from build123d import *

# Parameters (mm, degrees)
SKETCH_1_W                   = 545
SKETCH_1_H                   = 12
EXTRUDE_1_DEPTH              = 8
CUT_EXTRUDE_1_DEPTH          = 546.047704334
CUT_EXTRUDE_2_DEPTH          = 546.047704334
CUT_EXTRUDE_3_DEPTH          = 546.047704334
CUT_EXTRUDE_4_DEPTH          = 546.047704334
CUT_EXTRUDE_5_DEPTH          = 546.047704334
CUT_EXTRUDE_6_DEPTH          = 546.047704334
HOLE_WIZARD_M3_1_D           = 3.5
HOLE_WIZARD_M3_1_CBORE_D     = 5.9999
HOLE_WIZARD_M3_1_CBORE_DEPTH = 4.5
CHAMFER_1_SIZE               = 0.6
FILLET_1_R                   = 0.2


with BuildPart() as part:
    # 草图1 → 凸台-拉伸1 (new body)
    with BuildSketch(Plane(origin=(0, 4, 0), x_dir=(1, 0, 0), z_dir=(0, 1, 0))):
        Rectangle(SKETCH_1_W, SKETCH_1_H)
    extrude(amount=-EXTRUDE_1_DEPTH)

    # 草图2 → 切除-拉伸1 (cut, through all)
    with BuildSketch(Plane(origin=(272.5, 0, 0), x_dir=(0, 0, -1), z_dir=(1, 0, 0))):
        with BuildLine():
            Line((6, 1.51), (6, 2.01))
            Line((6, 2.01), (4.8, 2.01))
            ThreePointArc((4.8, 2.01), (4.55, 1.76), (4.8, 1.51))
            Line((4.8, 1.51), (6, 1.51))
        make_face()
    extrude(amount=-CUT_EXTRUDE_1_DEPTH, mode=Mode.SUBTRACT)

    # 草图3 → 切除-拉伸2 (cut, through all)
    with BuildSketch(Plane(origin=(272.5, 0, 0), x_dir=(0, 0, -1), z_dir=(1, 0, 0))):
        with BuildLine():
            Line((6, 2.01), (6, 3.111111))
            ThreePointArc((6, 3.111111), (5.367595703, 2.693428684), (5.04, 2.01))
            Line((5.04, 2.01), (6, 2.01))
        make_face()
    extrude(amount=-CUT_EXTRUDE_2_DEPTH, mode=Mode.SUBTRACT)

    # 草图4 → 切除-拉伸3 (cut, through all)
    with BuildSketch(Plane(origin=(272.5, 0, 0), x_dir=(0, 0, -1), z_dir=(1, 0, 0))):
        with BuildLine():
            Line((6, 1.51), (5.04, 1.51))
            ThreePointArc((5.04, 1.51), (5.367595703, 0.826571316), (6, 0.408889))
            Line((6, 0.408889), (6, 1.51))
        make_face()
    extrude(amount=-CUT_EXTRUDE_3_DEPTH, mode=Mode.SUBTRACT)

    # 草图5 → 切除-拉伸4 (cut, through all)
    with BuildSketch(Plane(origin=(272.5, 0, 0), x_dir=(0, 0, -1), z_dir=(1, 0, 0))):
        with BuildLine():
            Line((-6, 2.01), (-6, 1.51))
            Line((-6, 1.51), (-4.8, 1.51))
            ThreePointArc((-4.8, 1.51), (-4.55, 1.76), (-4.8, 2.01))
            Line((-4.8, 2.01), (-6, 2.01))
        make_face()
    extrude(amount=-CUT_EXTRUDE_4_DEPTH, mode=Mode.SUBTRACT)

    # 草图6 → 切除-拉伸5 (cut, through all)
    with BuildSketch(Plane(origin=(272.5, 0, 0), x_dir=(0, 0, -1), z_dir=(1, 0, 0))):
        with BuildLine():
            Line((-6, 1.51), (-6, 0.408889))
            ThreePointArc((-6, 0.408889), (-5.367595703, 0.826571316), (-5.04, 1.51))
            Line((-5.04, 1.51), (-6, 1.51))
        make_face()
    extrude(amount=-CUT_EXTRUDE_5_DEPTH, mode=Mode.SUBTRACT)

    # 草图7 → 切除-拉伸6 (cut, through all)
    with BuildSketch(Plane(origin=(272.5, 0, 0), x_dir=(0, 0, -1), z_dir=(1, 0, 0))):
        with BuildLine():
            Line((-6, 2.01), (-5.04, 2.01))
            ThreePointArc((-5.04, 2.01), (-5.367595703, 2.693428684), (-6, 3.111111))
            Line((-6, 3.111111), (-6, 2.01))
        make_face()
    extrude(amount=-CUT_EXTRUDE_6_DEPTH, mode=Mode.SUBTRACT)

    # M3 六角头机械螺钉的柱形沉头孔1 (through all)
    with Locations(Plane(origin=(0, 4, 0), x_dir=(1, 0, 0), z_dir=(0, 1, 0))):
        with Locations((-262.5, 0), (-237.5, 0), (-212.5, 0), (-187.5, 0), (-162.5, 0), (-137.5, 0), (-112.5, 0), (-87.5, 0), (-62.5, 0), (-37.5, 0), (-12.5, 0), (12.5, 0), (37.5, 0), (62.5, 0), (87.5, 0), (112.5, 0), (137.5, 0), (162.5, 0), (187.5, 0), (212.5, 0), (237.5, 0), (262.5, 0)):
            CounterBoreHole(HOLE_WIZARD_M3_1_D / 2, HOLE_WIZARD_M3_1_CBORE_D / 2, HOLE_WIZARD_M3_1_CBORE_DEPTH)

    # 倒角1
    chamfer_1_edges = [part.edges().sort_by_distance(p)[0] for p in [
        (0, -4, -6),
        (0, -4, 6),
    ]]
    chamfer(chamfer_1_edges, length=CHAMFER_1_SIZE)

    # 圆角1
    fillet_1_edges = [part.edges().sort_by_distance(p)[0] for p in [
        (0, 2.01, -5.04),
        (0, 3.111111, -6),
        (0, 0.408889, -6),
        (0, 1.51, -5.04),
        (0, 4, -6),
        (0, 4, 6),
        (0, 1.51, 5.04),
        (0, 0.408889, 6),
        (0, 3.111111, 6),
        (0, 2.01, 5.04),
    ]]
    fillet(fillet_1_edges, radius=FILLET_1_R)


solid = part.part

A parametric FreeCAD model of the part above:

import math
import FreeCAD as App
import Part
import Sketcher

V = App.Vector
Q = App.Units.Quantity


def edges_at(feature, points):
    """Names of the edges that pass closest to the given points."""
    edges = feature.Shape.Edges
    near = lambda p: min(range(len(edges)), key=lambda i: edges[i].distToShape(Part.Vertex(*p))[0])
    return sorted({f"Edge{near(p) + 1}" for p in points})

doc = App.newDocument("Part")
body = doc.addObject("PartDesign::Body", "Body")

# Sketch on XZ plane
sketch1 = body.newObject("Sketcher::SketchObject", "Sketch")
sketch1.AttachmentSupport = (doc.getObject("XZ_Plane"), [""])
sketch1.MapMode = "FlatFace"
sketch1.AttachmentOffset = App.Placement(V(0, 0, -4), App.Rotation())
sketch1.addGeometry([
    Part.LineSegment(V(-272.5, -6, 0), V(-272.5, 6, 0)),
    Part.LineSegment(V(-272.5, 6, 0), V(272.5, 6, 0)),
    Part.LineSegment(V(272.5, 6, 0), V(272.5, -6, 0)),
    Part.LineSegment(V(272.5, -6, 0), V(-272.5, -6, 0)),
], False)
sketch1.addConstraint([
    Sketcher.Constraint("Coincident", 0, 2, 1, 1),
    Sketcher.Constraint("Coincident", 1, 2, 2, 1),
    Sketcher.Constraint("Coincident", 2, 2, 3, 1),
    Sketcher.Constraint("Coincident", 3, 2, 0, 1),
    Sketcher.Constraint("Vertical", 0),
    Sketcher.Constraint("Horizontal", 1),
    Sketcher.Constraint("Vertical", 2),
    Sketcher.Constraint("Horizontal", 3),
    Sketcher.Constraint("Symmetric", 0, 2, 2, 2, -1, 1),
    Sketcher.Constraint("DistanceX", 1, 1, 1, 2, Q("545 mm")),
    Sketcher.Constraint("DistanceY", 0, 1, 0, 2, Q("12 mm")),
])
pad1 = body.newObject("PartDesign::Pad", "Pad")
pad1.Profile = sketch1
pad1.Length = 8

# Sketch on YZ plane
sketch2 = body.newObject("Sketcher::SketchObject", "Sketch001")
sketch2.AttachmentSupport = (doc.getObject("YZ_Plane"), [""])
sketch2.MapMode = "FlatFace"
sketch2.AttachmentOffset = App.Placement(V(0, 0, 272.5), App.Rotation())
sketch2.addGeometry([
    Part.LineSegment(V(1.51, -6, 0), V(2.01, -6, 0)),
    Part.LineSegment(V(2.01, -6, 0), V(2.01, -4.8, 0)),
    Part.ArcOfCircle(Part.Circle(V(1.76, -4.8, 0), V(0, 0, 1), 0.25), math.radians(0), math.radians(180)),
    Part.LineSegment(V(1.51, -4.8, 0), V(1.51, -6, 0)),
], False)
sketch2.addConstraint([
    Sketcher.Constraint("Coincident", 0, 2, 1, 1),
    Sketcher.Constraint("Tangent", 1, 2, 2, 1),
    Sketcher.Constraint("Tangent", 2, 2, 3, 1),
    Sketcher.Constraint("Coincident", 3, 2, 0, 1),
    Sketcher.Constraint("Horizontal", 0),
    Sketcher.Constraint("Vertical", 1),
    Sketcher.Constraint("Vertical", 3),
    Sketcher.Constraint("Radius", 2, Q("0.25 mm")),
    Sketcher.Constraint("DistanceY", 1, 1, 1, 2, Q("1.2 mm")),
    Sketcher.Constraint("DistanceY", 0, 2, -1, 1, Q("6 mm")),
    Sketcher.Constraint("DistanceX", -1, 1, 2, 3, Q("1.76 mm")),
])
pocket1 = body.newObject("PartDesign::Pocket", "Pocket")
pocket1.Profile = sketch2
pocket1.Type = "ThroughAll"

# Sketch on YZ plane
sketch3 = body.newObject("Sketcher::SketchObject", "Sketch002")
sketch3.AttachmentSupport = (doc.getObject("YZ_Plane"), [""])
sketch3.MapMode = "FlatFace"
sketch3.AttachmentOffset = App.Placement(V(0, 0, 272.5), App.Rotation())
sketch3.addGeometry([
    Part.LineSegment(V(2.01, -6, 0), V(3.111111, -6, 0)),
    Part.ArcOfCircle(Part.Circle(V(1.76, -6.43823, 0), V(0, 0, 1), 1.420404), math.radians(17.970348), math.radians(79.862775)),
    Part.LineSegment(V(2.01, -5.04, 0), V(2.01, -6, 0)),
], False)
sketch3.addConstraint([
    Sketcher.Constraint("Coincident", 0, 2, 1, 1),
    Sketcher.Constraint("Coincident", 1, 2, 2, 1),
    Sketcher.Constraint("Coincident", 2, 2, 0, 1),
    Sketcher.Constraint("Horizontal", 0),
    Sketcher.Constraint("Vertical", 2),
    Sketcher.Constraint("DistanceY", 0, 2, -1, 1, Q("6 mm")),
    Sketcher.Constraint("DistanceY", 2, 2, 2, 1, Q("0.96 mm")),
    Sketcher.Constraint("DistanceX", -1, 1, 1, 3, Q("1.76 mm")),
    Sketcher.Constraint("DistanceX", -1, 1, 1, 2, Q("2.01 mm")),
    Sketcher.Constraint("Radius", 1, Q("1.420404 mm")),
])
pocket2 = body.newObject("PartDesign::Pocket", "Pocket001")
pocket2.Profile = sketch3
pocket2.Type = "ThroughAll"

# Sketch on YZ plane
sketch4 = body.newObject("Sketcher::SketchObject", "Sketch003")
sketch4.AttachmentSupport = (doc.getObject("YZ_Plane"), [""])
sketch4.MapMode = "FlatFace"
sketch4.AttachmentOffset = App.Placement(V(0, 0, 272.5), App.Rotation())
sketch4.addGeometry([
    Part.LineSegment(V(1.51, -6, 0), V(1.51, -5.04, 0)),
    Part.ArcOfCircle(Part.Circle(V(1.76, -6.43823, 0), V(0, 0, 1), 1.420404), math.radians(100.137225), math.radians(162.029652)),
    Part.LineSegment(V(0.408889, -6, 0), V(1.51, -6, 0)),
], False)
sketch4.addConstraint([
    Sketcher.Constraint("Coincident", 0, 2, 1, 1),
    Sketcher.Constraint("Coincident", 1, 2, 2, 1),
    Sketcher.Constraint("Coincident", 2, 2, 0, 1),
    Sketcher.Constraint("Vertical", 0),
    Sketcher.Constraint("Horizontal", 2),
    Sketcher.Constraint("DistanceY", 1, 2, -1, 1, Q("6 mm")),
    Sketcher.Constraint("DistanceY", 0, 1, 0, 2, Q("0.96 mm")),
    Sketcher.Constraint("DistanceX", -1, 1, 1, 3, Q("1.76 mm")),
    Sketcher.Constraint("DistanceX", -1, 1, 0, 2, Q("1.51 mm")),
    Sketcher.Constraint("Radius", 1, Q("1.420404 mm")),
])
pocket3 = body.newObject("PartDesign::Pocket", "Pocket002")
pocket3.Profile = sketch4
pocket3.Type = "ThroughAll"

# Sketch on YZ plane
sketch5 = body.newObject("Sketcher::SketchObject", "Sketch004")
sketch5.AttachmentSupport = (doc.getObject("YZ_Plane"), [""])
sketch5.MapMode = "FlatFace"
sketch5.AttachmentOffset = App.Placement(V(0, 0, 272.5), App.Rotation())
sketch5.addGeometry([
    Part.LineSegment(V(2.01, 6, 0), V(1.51, 6, 0)),
    Part.LineSegment(V(1.51, 6, 0), V(1.51, 4.8, 0)),
    Part.ArcOfCircle(Part.Circle(V(1.76, 4.8, 0), V(0, 0, 1), 0.25), math.radians(180), math.radians(360)),
    Part.LineSegment(V(2.01, 4.8, 0), V(2.01, 6, 0)),
], False)
sketch5.addConstraint([
    Sketcher.Constraint("Coincident", 0, 2, 1, 1),
    Sketcher.Constraint("Tangent", 1, 2, 2, 1),
    Sketcher.Constraint("Tangent", 2, 2, 3, 1),
    Sketcher.Constraint("Coincident", 3, 2, 0, 1),
    Sketcher.Constraint("Horizontal", 0),
    Sketcher.Constraint("Vertical", 1),
    Sketcher.Constraint("Vertical", 3),
    Sketcher.Constraint("Radius", 2, Q("0.25 mm")),
    Sketcher.Constraint("DistanceY", 1, 2, 1, 1, Q("1.2 mm")),
    Sketcher.Constraint("DistanceY", -1, 1, 0, 2, Q("6 mm")),
    Sketcher.Constraint("DistanceX", -1, 1, 2, 3, Q("1.76 mm")),
])
pocket4 = body.newObject("PartDesign::Pocket", "Pocket003")
pocket4.Profile = sketch5
pocket4.Type = "ThroughAll"

# Sketch on YZ plane
sketch6 = body.newObject("Sketcher::SketchObject", "Sketch005")
sketch6.AttachmentSupport = (doc.getObject("YZ_Plane"), [""])
sketch6.MapMode = "FlatFace"
sketch6.AttachmentOffset = App.Placement(V(0, 0, 272.5), App.Rotation())
sketch6.addGeometry([
    Part.LineSegment(V(1.51, 6, 0), V(0.408889, 6, 0)),
    Part.ArcOfCircle(Part.Circle(V(1.76, 6.43823, 0), V(0, 0, 1), 1.420404), math.radians(-162.029652), math.radians(-100.137225)),
    Part.LineSegment(V(1.51, 5.04, 0), V(1.51, 6, 0)),
], False)
sketch6.addConstraint([
    Sketcher.Constraint("Coincident", 0, 2, 1, 1),
    Sketcher.Constraint("Coincident", 1, 2, 2, 1),
    Sketcher.Constraint("Coincident", 2, 2, 0, 1),
    Sketcher.Constraint("Horizontal", 0),
    Sketcher.Constraint("Vertical", 2),
    Sketcher.Constraint("DistanceY", -1, 1, 0, 2, Q("6 mm")),
    Sketcher.Constraint("DistanceY", 2, 1, 2, 2, Q("0.96 mm")),
    Sketcher.Constraint("DistanceX", -1, 1, 1, 3, Q("1.76 mm")),
    Sketcher.Constraint("DistanceX", -1, 1, 1, 2, Q("1.51 mm")),
    Sketcher.Constraint("Radius", 1, Q("1.420404 mm")),
])
pocket5 = body.newObject("PartDesign::Pocket", "Pocket004")
pocket5.Profile = sketch6
pocket5.Type = "ThroughAll"

# Sketch on YZ plane
sketch7 = body.newObject("Sketcher::SketchObject", "Sketch006")
sketch7.AttachmentSupport = (doc.getObject("YZ_Plane"), [""])
sketch7.MapMode = "FlatFace"
sketch7.AttachmentOffset = App.Placement(V(0, 0, 272.5), App.Rotation())
sketch7.addGeometry([
    Part.LineSegment(V(2.01, 6, 0), V(2.01, 5.04, 0)),
    Part.ArcOfCircle(Part.Circle(V(1.76, 6.43823, 0), V(0, 0, 1), 1.420404), math.radians(-79.862775), math.radians(-17.970348)),
    Part.LineSegment(V(3.111111, 6, 0), V(2.01, 6, 0)),
], False)
sketch7.addConstraint([
    Sketcher.Constraint("Coincident", 0, 2, 1, 1),
    Sketcher.Constraint("Coincident", 1, 2, 2, 1),
    Sketcher.Constraint("Coincident", 2, 2, 0, 1),
    Sketcher.Constraint("Vertical", 0),
    Sketcher.Constraint("Horizontal", 2),
    Sketcher.Constraint("DistanceY", -1, 1, 1, 2, Q("6 mm")),
    Sketcher.Constraint("DistanceY", 0, 2, 0, 1, Q("0.96 mm")),
    Sketcher.Constraint("DistanceX", -1, 1, 1, 3, Q("1.76 mm")),
    Sketcher.Constraint("DistanceX", -1, 1, 0, 2, Q("2.01 mm")),
    Sketcher.Constraint("Radius", 1, Q("1.420404 mm")),
])
pocket6 = body.newObject("PartDesign::Pocket", "Pocket005")
pocket6.Profile = sketch7
pocket6.Type = "ThroughAll"

# Sketch on XZ plane
sketch8 = body.newObject("Sketcher::SketchObject", "Sketch007")
sketch8.AttachmentSupport = (doc.getObject("XZ_Plane"), [""])
sketch8.MapMode = "FlatFace"
sketch8.AttachmentOffset = App.Placement(V(0, 0, -4), App.Rotation())
sketch8.addGeometry([
    Part.Circle(V(-262.5, 0, 0), V(0, 0, 1), 1.75),  # 0
    Part.Circle(V(-237.5, 0, 0), V(0, 0, 1), 1.75),  # 1
    Part.Circle(V(-212.5, 0, 0), V(0, 0, 1), 1.75),  # 2
    Part.Circle(V(-187.5, 0, 0), V(0, 0, 1), 1.75),  # 3
    Part.Circle(V(-162.5, 0, 0), V(0, 0, 1), 1.75),  # 4
    Part.Circle(V(-137.5, 0, 0), V(0, 0, 1), 1.75),  # 5
    Part.Circle(V(-112.5, 0, 0), V(0, 0, 1), 1.75),  # 6
    Part.Circle(V(-87.5, 0, 0), V(0, 0, 1), 1.75),  # 7
    Part.Circle(V(-62.5, 0, 0), V(0, 0, 1), 1.75),  # 8
    Part.Circle(V(-37.5, 0, 0), V(0, 0, 1), 1.75),  # 9
    Part.Circle(V(-12.5, 0, 0), V(0, 0, 1), 1.75),  # 10
    Part.Circle(V(12.5, 0, 0), V(0, 0, 1), 1.75),  # 11
    Part.Circle(V(37.5, 0, 0), V(0, 0, 1), 1.75),  # 12
    Part.Circle(V(62.5, 0, 0), V(0, 0, 1), 1.75),  # 13
    Part.Circle(V(87.5, 0, 0), V(0, 0, 1), 1.75),  # 14
    Part.Circle(V(112.5, 0, 0), V(0, 0, 1), 1.75),  # 15
    Part.Circle(V(137.5, 0, 0), V(0, 0, 1), 1.75),  # 16
    Part.Circle(V(162.5, 0, 0), V(0, 0, 1), 1.75),  # 17
    Part.Circle(V(187.5, 0, 0), V(0, 0, 1), 1.75),  # 18
    Part.Circle(V(212.5, 0, 0), V(0, 0, 1), 1.75),  # 19
    Part.Circle(V(237.5, 0, 0), V(0, 0, 1), 1.75),  # 20
    Part.Circle(V(262.5, 0, 0), V(0, 0, 1), 1.75),  # 21
], False)
sketch8.addConstraint([
    Sketcher.Constraint("Equal", 0, 1),
    Sketcher.Constraint("Equal", 1, 2),
    Sketcher.Constraint("Equal", 2, 3),
    Sketcher.Constraint("Equal", 3, 4),
    Sketcher.Constraint("Equal", 4, 5),
    Sketcher.Constraint("Equal", 5, 6),
    Sketcher.Constraint("Equal", 6, 7),
    Sketcher.Constraint("Equal", 7, 8),
    Sketcher.Constraint("Equal", 8, 9),
    Sketcher.Constraint("Equal", 9, 10),
    Sketcher.Constraint("Equal", 10, 11),
    Sketcher.Constraint("Equal", 11, 12),
    Sketcher.Constraint("Equal", 12, 13),
    Sketcher.Constraint("Equal", 13, 14),
    Sketcher.Constraint("Equal", 14, 15),
    Sketcher.Constraint("Equal", 15, 16),
    Sketcher.Constraint("Equal", 16, 17),
    Sketcher.Constraint("Equal", 17, 18),
    Sketcher.Constraint("Equal", 18, 19),
    Sketcher.Constraint("Equal", 19, 20),
    Sketcher.Constraint("Equal", 20, 21),
    Sketcher.Constraint("Symmetric", 10, 3, 11, 3, -1, 1),
    Sketcher.Constraint("Symmetric", 9, 3, 12, 3, -1, 1),
    Sketcher.Constraint("Symmetric", 8, 3, 13, 3, -1, 1),
    Sketcher.Constraint("Symmetric", 7, 3, 14, 3, -1, 1),
    Sketcher.Constraint("Symmetric", 6, 3, 15, 3, -1, 1),
    Sketcher.Constraint("Symmetric", 5, 3, 16, 3, -1, 1),
    Sketcher.Constraint("Symmetric", 4, 3, 17, 3, -1, 1),
    Sketcher.Constraint("Symmetric", 3, 3, 18, 3, -1, 1),
    Sketcher.Constraint("Symmetric", 2, 3, 19, 3, -1, 1),
    Sketcher.Constraint("Symmetric", 1, 3, 20, 3, -1, 1),
    Sketcher.Constraint("Symmetric", 0, 3, 21, 3, -1, 1),
    Sketcher.Constraint("PointOnObject", 0, 3, -1),
    Sketcher.Constraint("PointOnObject", 1, 3, -1),
    Sketcher.Constraint("PointOnObject", 2, 3, -1),
    Sketcher.Constraint("PointOnObject", 3, 3, -1),
    Sketcher.Constraint("PointOnObject", 4, 3, -1),
    Sketcher.Constraint("PointOnObject", 5, 3, -1),
    Sketcher.Constraint("PointOnObject", 6, 3, -1),
    Sketcher.Constraint("PointOnObject", 7, 3, -1),
    Sketcher.Constraint("PointOnObject", 8, 3, -1),
    Sketcher.Constraint("PointOnObject", 9, 3, -1),
    Sketcher.Constraint("PointOnObject", 10, 3, -1),
    Sketcher.Constraint("Diameter", 0, Q("3.5 mm")),
    Sketcher.Constraint("DistanceX", 0, 3, 1, 3, Q("25 mm")),
    Sketcher.Constraint("DistanceX", 1, 3, 2, 3, Q("25 mm")),
    Sketcher.Constraint("DistanceX", 2, 3, 3, 3, Q("25 mm")),
    Sketcher.Constraint("DistanceX", 3, 3, 4, 3, Q("25 mm")),
    Sketcher.Constraint("DistanceX", 4, 3, 5, 3, Q("25 mm")),
    Sketcher.Constraint("DistanceX", 5, 3, 6, 3, Q("25 mm")),
    Sketcher.Constraint("DistanceX", 6, 3, 7, 3, Q("25 mm")),
    Sketcher.Constraint("DistanceX", 7, 3, 8, 3, Q("25 mm")),
    Sketcher.Constraint("DistanceX", 8, 3, 9, 3, Q("25 mm")),
    Sketcher.Constraint("DistanceX", 9, 3, 10, 3, Q("25 mm")),
    Sketcher.Constraint("DistanceX", 10, 3, 11, 3, Q("25 mm")),
])
doc.recompute()
hole = body.newObject("PartDesign::Hole", "Hole")
hole.Profile = sketch8
hole.ThreadType = "None"
hole.Diameter = 3.5
hole.DepthType = "ThroughAll"
hole.HoleCutType = "Counterbore"
hole.HoleCutDiameter = 5.9999
hole.HoleCutDepth = 4.5
hole.Reversed = True
doc.recompute()

chamfer = body.newObject("PartDesign::Chamfer", "Chamfer")
chamfer.Base = (hole, edges_at(hole, [(0, -4, -6), (0, -4, 6)]))
chamfer.Size = 0.6
doc.recompute()

fillet = body.newObject("PartDesign::Fillet", "Fillet")
fillet.Base = (chamfer, edges_at(chamfer, [
    (0, 2.01, -5.04),
    (0, 3.111, -6),
    (0, 0.409, -6),
    (0, 1.51, -5.04),
    (0, 4, -6),
    (0, 4, 6),
    (0, 1.51, 5.04),
    (0, 0.409, 6),
    (0, 3.111, 6),
    (0, 2.01, 5.04),
]))
fillet.Radius = 0.2

doc.recompute()
